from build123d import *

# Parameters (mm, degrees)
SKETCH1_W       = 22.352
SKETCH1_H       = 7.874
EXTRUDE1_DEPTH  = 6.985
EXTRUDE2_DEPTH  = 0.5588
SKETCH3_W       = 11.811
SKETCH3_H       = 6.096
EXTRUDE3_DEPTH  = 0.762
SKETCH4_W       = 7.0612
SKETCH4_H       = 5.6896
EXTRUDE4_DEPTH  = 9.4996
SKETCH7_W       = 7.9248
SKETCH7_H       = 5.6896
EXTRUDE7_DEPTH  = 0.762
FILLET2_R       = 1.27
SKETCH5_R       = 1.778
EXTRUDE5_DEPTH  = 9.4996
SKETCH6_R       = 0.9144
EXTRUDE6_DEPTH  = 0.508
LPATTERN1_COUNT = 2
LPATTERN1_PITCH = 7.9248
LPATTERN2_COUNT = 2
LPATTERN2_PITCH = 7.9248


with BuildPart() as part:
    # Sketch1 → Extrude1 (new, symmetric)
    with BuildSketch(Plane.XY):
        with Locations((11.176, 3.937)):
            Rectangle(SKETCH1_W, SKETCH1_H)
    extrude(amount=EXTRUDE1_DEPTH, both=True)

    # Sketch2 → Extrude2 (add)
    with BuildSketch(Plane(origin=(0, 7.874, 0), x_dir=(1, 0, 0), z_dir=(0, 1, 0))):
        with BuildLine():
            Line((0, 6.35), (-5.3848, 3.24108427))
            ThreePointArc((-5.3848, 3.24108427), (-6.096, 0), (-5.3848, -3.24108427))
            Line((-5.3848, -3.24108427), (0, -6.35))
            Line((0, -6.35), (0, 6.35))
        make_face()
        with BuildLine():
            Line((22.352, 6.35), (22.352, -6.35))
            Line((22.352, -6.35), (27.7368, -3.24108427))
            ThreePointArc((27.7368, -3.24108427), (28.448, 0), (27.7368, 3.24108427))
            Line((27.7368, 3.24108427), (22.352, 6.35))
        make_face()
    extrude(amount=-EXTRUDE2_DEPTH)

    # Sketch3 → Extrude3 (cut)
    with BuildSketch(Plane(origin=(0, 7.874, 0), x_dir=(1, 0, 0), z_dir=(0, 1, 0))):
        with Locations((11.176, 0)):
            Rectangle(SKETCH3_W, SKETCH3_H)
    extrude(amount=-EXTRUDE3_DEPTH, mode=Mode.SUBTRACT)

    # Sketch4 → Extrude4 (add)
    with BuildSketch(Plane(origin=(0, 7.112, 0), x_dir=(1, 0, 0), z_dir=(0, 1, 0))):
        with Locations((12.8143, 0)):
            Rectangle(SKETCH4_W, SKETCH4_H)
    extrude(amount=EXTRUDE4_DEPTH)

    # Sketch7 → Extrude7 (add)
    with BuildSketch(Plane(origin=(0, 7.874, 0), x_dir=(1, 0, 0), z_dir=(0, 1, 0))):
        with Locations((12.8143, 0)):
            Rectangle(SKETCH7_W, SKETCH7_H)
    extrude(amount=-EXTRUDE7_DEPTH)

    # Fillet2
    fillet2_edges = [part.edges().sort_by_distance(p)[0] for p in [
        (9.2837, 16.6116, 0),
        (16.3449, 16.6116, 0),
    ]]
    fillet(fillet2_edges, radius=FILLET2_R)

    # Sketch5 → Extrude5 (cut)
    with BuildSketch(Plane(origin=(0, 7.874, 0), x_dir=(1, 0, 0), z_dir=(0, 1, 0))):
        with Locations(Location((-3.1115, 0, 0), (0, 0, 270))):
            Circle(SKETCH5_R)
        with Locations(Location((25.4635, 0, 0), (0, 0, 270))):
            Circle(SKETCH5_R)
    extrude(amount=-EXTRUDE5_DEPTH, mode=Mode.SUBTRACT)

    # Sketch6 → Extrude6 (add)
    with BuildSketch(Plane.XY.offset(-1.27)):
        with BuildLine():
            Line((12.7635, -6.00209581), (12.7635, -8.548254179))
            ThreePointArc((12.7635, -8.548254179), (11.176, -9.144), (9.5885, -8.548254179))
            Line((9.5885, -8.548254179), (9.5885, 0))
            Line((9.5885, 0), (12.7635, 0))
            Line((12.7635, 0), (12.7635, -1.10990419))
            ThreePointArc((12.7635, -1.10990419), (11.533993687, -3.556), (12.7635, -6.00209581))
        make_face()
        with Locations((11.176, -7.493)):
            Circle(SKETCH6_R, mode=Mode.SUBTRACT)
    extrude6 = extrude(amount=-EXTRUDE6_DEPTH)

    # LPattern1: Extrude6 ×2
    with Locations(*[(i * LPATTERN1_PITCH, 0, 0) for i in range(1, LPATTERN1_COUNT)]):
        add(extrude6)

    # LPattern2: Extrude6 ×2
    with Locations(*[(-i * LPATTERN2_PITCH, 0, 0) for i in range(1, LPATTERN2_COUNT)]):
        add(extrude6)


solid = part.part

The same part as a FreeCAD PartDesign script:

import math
import FreeCAD as App
import Part
import Sketcher
from FreeCAD import Vector
Q = App.Units.Quantity


def edges_at(feature, points):
    """Names of the edges that pass closest to the given points."""
    edges = feature.Shape.Edges
    near = lambda p: min(range(len(edges)), key=lambda i: edges[i].distToShape(Part.Vertex(*p))[0])
    return sorted({f"Edge{near(p) + 1}" for p in points})


def add_polygon(sketch, points):
    """Adds a closed chain of lines whose ends are joined by coincident constraints."""
    first, n = sketch.GeometryCount, len(points)
    for a, b in zip(points, points[1:] + points[:1]):
        sketch.addGeometry(Part.LineSegment(App.Vector(*a, 0), App.Vector(*b, 0)), False)
    for i in range(n):
        sketch.addConstraint(Sketcher.Constraint("Coincident", first + i, 2, first + (i + 1) % n, 1))

doc = App.newDocument("Part")
body = doc.addObject("PartDesign::Body", "Body")

# Sketch on XY plane
sketch1 = body.newObject("Sketcher::SketchObject", "Sketch")
sketch1.AttachmentSupport = (doc.getObject("XY_Plane"), [""])
sketch1.MapMode = "FlatFace"
add_polygon(sketch1, [(0, 7.874), (0, 0), (22.352, 0), (22.352, 7.874)])  # lines 0-3
sketch1.addConstraint([
    Sketcher.Constraint("Vertical", 0),
    Sketcher.Constraint("Horizontal", 1),
    Sketcher.Constraint("Vertical", 2),
    Sketcher.Constraint("Horizontal", 3),
    Sketcher.Constraint("Coincident", 0, 2, -1, 1),
    Sketcher.Constraint("DistanceX", 1, 1, 1, 2, Q("0.88 in")),
    Sketcher.Constraint("DistanceY", 0, 2, 0, 1, Q("0.31 in")),
])
pad1 = body.newObject("PartDesign::Pad", "Pad")
pad1.Profile = sketch1
pad1.Length = Q("0.55 in")
pad1.Midplane = True

# Sketch on XZ plane
sketch2 = body.newObject("Sketcher::SketchObject", "Sketch001")
sketch2.AttachmentSupport = (doc.getObject("XZ_Plane"), [""])
sketch2.MapMode = "FlatFace"
sketch2.AttachmentOffset = App.Placement(Vector(0, 0, -0.31 * 25.4), App.Rotation())
sketch2.addGeometry([
    Part.LineSegment(Vector(0, -6.35, 0), Vector(-5.3848, -3.241084, 0)),  # 0
    Part.ArcOfCircle(Part.Circle(Vector(1.644743, 0, 0), Vector(0, 0, 1), 7.740743), math.radians(155.247173), math.radians(204.752827)),  # 1
    Part.LineSegment(Vector(-5.3848, 3.241084, 0), Vector(0, 6.35, 0)),  # 2
    Part.LineSegment(Vector(0, 6.35, 0), Vector(0, -6.35, 0)),  # 3
    Part.LineSegment(Vector(22.352, -6.35, 0), Vector(22.352, 6.35, 0)),  # 4
    Part.LineSegment(Vector(22.352, 6.35, 0), Vector(27.7368, 3.241084, 0)),  # 5
    Part.ArcOfCircle(Part.Circle(Vector(20.707257, 0, 0), Vector(0, 0, 1), 7.740743), math.radians(-24.752827), math.radians(24.752827)),  # 6
    Part.LineSegment(Vector(27.7368, -3.241084, 0), Vector(22.352, -6.35, 0)),  # 7
], False)
sketch2.addConstraint([
    Sketcher.Constraint("Coincident", 0, 2, 1, 2),
    Sketcher.Constraint("Coincident", 1, 1, 2, 1),
    Sketcher.Constraint("Coincident", 2, 2, 3, 1),
    Sketcher.Constraint("Coincident", 3, 2, 0, 1),
    Sketcher.Constraint("Coincident", 4, 2, 5, 1),
    Sketcher.Constraint("Coincident", 5, 2, 6, 2),
    Sketcher.Constraint("Coincident", 6, 1, 7, 1),
    Sketcher.Constraint("Coincident", 7, 2, 4, 1),
    Sketcher.Constraint("Vertical", 3),
    Sketcher.Constraint("Vertical", 4),
    Sketcher.Constraint("Equal", 1, 6),
    Sketcher.Constraint("Symmetric", 2, 2, 3, 2, -1, 1),
    Sketcher.Constraint("Symmetric", 0, 2, 1, 1, -1),
    Sketcher.Constraint("Symmetric", 5, 2, 6, 1, -1),
    Sketcher.Constraint("Parallel", 0, 5),
    Sketcher.Constraint("Parallel", 2, 7),
    Sketcher.Constraint("Horizontal", 2, 2, 4, 2),
    Sketcher.Constraint("Horizontal", 1, 1, 5, 2),
    Sketcher.Constraint("DistanceY", 3, 2, 3, 1, Q("0.5 in")),
    Sketcher.Constraint("Angle", 0, Q("150 deg")),
    Sketcher.Constraint("DistanceX", -1, 1, 4, 2, Q("0.88 in")),
    Sketcher.Constraint("DistanceX", 0, 2, -1, 1, Q("0.212 in")),
    Sketcher.Constraint("Radius", 1, Q("7.740743 mm")),
])
pad2 = body.newObject("PartDesign::Pad", "Pad001")
pad2.Profile = sketch2
pad2.Length = Q("0.022 in")

# Sketch on XZ plane
sketch3 = body.newObject("Sketcher::SketchObject", "Sketch002")
sketch3.AttachmentSupport = (doc.getObject("XZ_Plane"), [""])
sketch3.MapMode = "FlatFace"
sketch3.AttachmentOffset = App.Placement(Vector(0, 0, -0.31 * 25.4), App.Rotation())
add_polygon(sketch3, [(5.2705, -3.048), (5.2705, 3.048), (17.0815, 3.048), (17.0815, -3.048)])  # lines 0-3
sketch3.addConstraint([
    Sketcher.Constraint("Vertical", 0),
    Sketcher.Constraint("Horizontal", 1),
    Sketcher.Constraint("Vertical", 2),
    Sketcher.Constraint("Horizontal", 3),
    Sketcher.Constraint("DistanceY", 0, 1, 0, 2, Q("0.24 in")),
    Sketcher.Constraint("DistanceX", 1, 1, 1, 2, Q("0.465 in")),
    Sketcher.Constraint("DistanceY", -1, 1, 0, 2, Q("0.12 in")),
    Sketcher.Constraint("DistanceX", -1, 1, 0, 2, Q("0.2075 in")),
])
pocket1 = body.newObject("PartDesign::Pocket", "Pocket")
pocket1.Profile = sketch3
pocket1.Length = Q("0.03 in")
pocket1.Reversed = True

# Sketch on XZ plane
sketch4 = body.newObject("Sketcher::SketchObject", "Sketch003")
sketch4.AttachmentSupport = (doc.getObject("XZ_Plane"), [""])
sketch4.MapMode = "FlatFace"
sketch4.AttachmentOffset = App.Placement(Vector(0, 0, -0.28 * 25.4), App.Rotation())
add_polygon(sketch4, [(9.2837, -2.8448), (9.2837, 2.8448), (16.3449, 2.8448), (16.3449, -2.8448)])  # lines 0-3
sketch4.addConstraint([
    Sketcher.Constraint("Vertical", 0),
    Sketcher.Constraint("Horizontal", 1),
    Sketcher.Constraint("Vertical", 2),
    Sketcher.Constraint("Horizontal", 3),
    Sketcher.Constraint("DistanceX", 1, 1, 1, 2, Q("0.278 in")),
    Sketcher.Constraint("DistanceY", 0, 1, 0, 2, Q("0.224 in")),
    Sketcher.Constraint("DistanceY", -1, 1, 0, 2, Q("0.112 in")),
    Sketcher.Constraint("DistanceX", -1, 1, 0, 2, Q("0.3655 in")),
])
pad3 = body.newObject("PartDesign::Pad", "Pad002")
pad3.Profile = sketch4
pad3.Length = Q("0.374 in")
pad3.Reversed = True

# Sketch on XZ plane
sketch5 = body.newObject("Sketcher::SketchObject", "Sketch004")
sketch5.AttachmentSupport = (doc.getObject("XZ_Plane"), [""])
sketch5.MapMode = "FlatFace"
sketch5.AttachmentOffset = App.Placement(Vector(0, 0, -0.31 * 25.4), App.Rotation())
add_polygon(sketch5, [(8.8519, -2.8448), (8.8519, 2.8448), (16.7767, 2.8448), (16.7767, -2.8448)])  # lines 0-3
sketch5.addConstraint([
    Sketcher.Constraint("Vertical", 0),
    Sketcher.Constraint("Horizontal", 1),
    Sketcher.Constraint("Vertical", 2),
    Sketcher.Constraint("Horizontal", 3),
    Sketcher.Constraint("DistanceX", 1, 1, 1, 2, Q("0.312 in")),
    Sketcher.Constraint("DistanceY", 0, 1, 0, 2, Q("0.224 in")),
    Sketcher.Constraint("DistanceY", -1, 1, 0, 2, Q("0.112 in")),
    Sketcher.Constraint("DistanceX", -1, 1, 0, 2, Q("0.3485 in")),
])
pad4 = body.newObject("PartDesign::Pad", "Pad003")
pad4.Profile = sketch5
pad4.Length = Q("0.03 in")
doc.recompute()

fillet = body.newObject("PartDesign::Fillet", "Fillet")
fillet.Base = (pad4, edges_at(pad4, [(9.284, 16.612, 0), (16.345, 16.612, 0)]))
fillet.Radius = Q("0.05 in")

# Sketch on XZ plane
sketch6 = body.newObject("Sketcher::SketchObject", "Sketch005")
sketch6.AttachmentSupport = (doc.getObject("XZ_Plane"), [""])
sketch6.MapMode = "FlatFace"
sketch6.AttachmentOffset = App.Placement(Vector(0, 0, -0.31 * 25.4), App.Rotation())
sketch6.addGeometry([
    Part.Circle(Vector(-3.1115, 0, 0), Vector(0, 0, 1), 1.778),
    Part.Circle(Vector(25.4635, 0, 0), Vector(0, 0, 1), 1.778),
], False)
sketch6.addConstraint([
    Sketcher.Constraint("Equal", 0, 1),
    Sketcher.Constraint("PointOnObject", 0, 3, -1),
    Sketcher.Constraint("PointOnObject", 1, 3, -1),
    Sketcher.Constraint("Diameter", 0, Q("0.14 in")),
    Sketcher.Constraint("DistanceX", 0, 3, 1, 3, Q("1.125 in")),
    Sketcher.Constraint("DistanceX", 0, 3, -1, 1, Q("0.1225 in")),
])
pocket2 = body.newObject("PartDesign::Pocket", "Pocket001")
pocket2.Profile = sketch6
pocket2.Length = Q("0.374 in")
pocket2.Reversed = True

# Sketch on XY plane
sketch7 = body.newObject("Sketcher::SketchObject", "Sketch006")
sketch7.AttachmentSupport = (doc.getObject("XY_Plane"), [""])
sketch7.MapMode = "FlatFace"
sketch7.AttachmentOffset = App.Placement(Vector(0, 0, -0.05 * 25.4), App.Rotation())
sketch7.addGeometry([
    Part.LineSegment(Vector(12.7635, -8.548254, 0), Vector(12.7635, -6.002096, 0)),  # 0
    Part.ArcOfCircle(Part.Circle(Vector(14.581994, -3.556, 0), Vector(0, 0, 1), 3.048), math.radians(126.628109), math.radians(233.371891)),  # 1
    Part.LineSegment(Vector(12.7635, -1.109904, 0), Vector(12.7635, 0, 0)),  # 2
    Part.LineSegment(Vector(12.7635, 0, 0), Vector(9.5885, 0, 0)),  # 3
    Part.LineSegment(Vector(9.5885, 0, 0), Vector(9.5885, -8.548254, 0)),  # 4
    Part.ArcOfCircle(Part.Circle(Vector(11.176, -6.731, 0), Vector(0, 0, 1), 2.413), math.radians(-131.13951), math.radians(-48.86049)),  # 5
    Part.Circle(Vector(11.176, -7.493, 0), Vector(0, 0, 1), 0.9144),  # 6
], False)
sketch7.addConstraint([
    Sketcher.Constraint("Coincident", 0, 2, 1, 2),
    Sketcher.Constraint("Coincident", 1, 1, 2, 1),
    Sketcher.Constraint("Coincident", 2, 2, 3, 1),
    Sketcher.Constraint("Coincident", 3, 2, 4, 1),
    Sketcher.Constraint("Coincident", 4, 2, 5, 1),
    Sketcher.Constraint("Coincident", 5, 2, 0, 1),
    Sketcher.Constraint("Vertical", 0),
    Sketcher.Constraint("Vertical", 2),
    Sketcher.Constraint("Horizontal", 3),
    Sketcher.Constraint("Vertical", 4),
    Sketcher.Constraint("PointOnObject", 2, 2, -1),
    Sketcher.Constraint("Horizontal", 4, 2, 5, 2),
    Sketcher.Constraint("Vertical", 5, 3, 6, 3),
    Sketcher.Constraint("Vertical", 0, 2, 1, 1),
    Sketcher.Constraint("Radius", 1, Q("0.12 in")),
    Sketcher.Constraint("Diameter", 6, Q("0.072 in")),
    Sketcher.Constraint("Radius", 5, Q("0.095 in")),
    Sketcher.Constraint("DistanceX", 3, 2, 3, 1, Q("0.125 in")),
    Sketcher.Constraint("DistanceY", 1, 3, -1, 1, Q("0.14 in")),
    Sketcher.Constraint("DistanceX", -1, 1, 5, 3, Q("0.44 in")),
    Sketcher.Constraint("DistanceY", 6, 3, 5, 3, Q("0.03 in")),
    Sketcher.Constraint("DistanceY", 5, 3, -1, 1, Q("0.265 in")),
    Sketcher.Constraint("DistanceY", 0, 1, 0, 2, Q("2.546158 mm")),
])
pad5 = body.newObject("PartDesign::Pad", "Pad004")
pad5.Profile = sketch7
pad5.Length = Q("0.02 in")
pad5.Reversed = True
doc.recompute()

linearpattern = body.newObject("PartDesign::LinearPattern", "LinearPattern")
linearpattern.Originals = [pad5]
linearpattern.Direction = (doc.getObject("X_Axis"), [""])
linearpattern.Mode = "offset"
linearpattern.Offset = Q("0.312 in")
linearpattern.Occurrences = 2
body.Tip = linearpattern
doc.recompute()

linearpattern2 = body.newObject("PartDesign::LinearPattern", "LinearPattern001")
linearpattern2.Originals = [pad5]
linearpattern2.Direction = (doc.getObject("X_Axis"), [""])
linearpattern2.Mode = "offset"
linearpattern2.Offset = Q("0.312 in")
linearpattern2.Occurrences = 2
linearpattern2.Reversed = True
body.Tip = linearpattern2

doc.recompute()
